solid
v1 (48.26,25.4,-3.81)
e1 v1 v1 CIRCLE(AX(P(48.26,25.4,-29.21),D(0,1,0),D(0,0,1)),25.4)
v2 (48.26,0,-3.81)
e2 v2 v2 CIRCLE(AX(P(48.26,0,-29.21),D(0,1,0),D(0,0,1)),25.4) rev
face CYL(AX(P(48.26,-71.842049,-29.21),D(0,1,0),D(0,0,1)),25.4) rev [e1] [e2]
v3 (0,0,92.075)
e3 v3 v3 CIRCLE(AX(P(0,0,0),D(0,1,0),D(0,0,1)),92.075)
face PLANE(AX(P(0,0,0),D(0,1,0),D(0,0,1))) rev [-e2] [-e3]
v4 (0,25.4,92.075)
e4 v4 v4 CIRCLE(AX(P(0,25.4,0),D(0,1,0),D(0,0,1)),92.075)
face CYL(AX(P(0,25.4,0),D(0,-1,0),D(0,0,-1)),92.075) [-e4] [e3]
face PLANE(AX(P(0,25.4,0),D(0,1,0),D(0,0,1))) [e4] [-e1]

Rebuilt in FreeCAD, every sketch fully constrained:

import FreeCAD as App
import Part
import Sketcher
from FreeCAD import Vector
Q = App.Units.Quantity

doc = App.newDocument("Part")
body = doc.addObject("PartDesign::Body", "Body")

# Sketch on XZ plane
sketch1 = doc.addObject("Sketcher::SketchObject", "Sketch")
body.addObject(sketch1)
sketch1.AttachmentSupport = (doc.XZ_Plane, [""])
sketch1.MapMode = "FlatFace"
sketch1.addGeometry(Part.Circle(Vector(0, 0, 0), Vector(0, 0, 1), 92), False)
sketch1.addConstraint(Sketcher.Constraint("Coincident", 0, 3, -1, 1))
sketch1.addConstraint(Sketcher.Constraint("Diameter", 0, Q("7.25 in")))
pad1 = doc.addObject("PartDesign::Pad", "Pad")
body.addObject(pad1)
pad1.Profile = sketch1
pad1.Length = Q("1 in")
pad1.Reversed = True

# Sketch on XZ plane
sketch2 = doc.addObject("Sketcher::SketchObject", "Sketch001")
body.addObject(sketch2)
sketch2.AttachmentSupport = (doc.XZ_Plane, [""])
sketch2.MapMode = "FlatFace"
sketch2.AttachmentOffset = App.Placement(Vector(0, 0, -1 * 25.4), App.Rotation())
sketch2.addGeometry(Part.Circle(Vector(48, -29, 0), Vector(0, 0, 1), 25), False)
sketch2.addConstraint(Sketcher.Constraint("Diameter", 0, Q("2 in")))
sketch2.addConstraint(Sketcher.Constraint("DistanceX", -1, 1, 0, 3, Q("1.9 in")))
sketch2.addConstraint(Sketcher.Constraint("DistanceY", 0, 3, -1, 1, Q("1.15 in")))
pocket1 = doc.addObject("PartDesign::Pocket", "Pocket")
body.addObject(pocket1)
pocket1.Profile = sketch2
pocket1.Length = Q("1 in")
pocket1.Reversed = True

doc.recompute()
